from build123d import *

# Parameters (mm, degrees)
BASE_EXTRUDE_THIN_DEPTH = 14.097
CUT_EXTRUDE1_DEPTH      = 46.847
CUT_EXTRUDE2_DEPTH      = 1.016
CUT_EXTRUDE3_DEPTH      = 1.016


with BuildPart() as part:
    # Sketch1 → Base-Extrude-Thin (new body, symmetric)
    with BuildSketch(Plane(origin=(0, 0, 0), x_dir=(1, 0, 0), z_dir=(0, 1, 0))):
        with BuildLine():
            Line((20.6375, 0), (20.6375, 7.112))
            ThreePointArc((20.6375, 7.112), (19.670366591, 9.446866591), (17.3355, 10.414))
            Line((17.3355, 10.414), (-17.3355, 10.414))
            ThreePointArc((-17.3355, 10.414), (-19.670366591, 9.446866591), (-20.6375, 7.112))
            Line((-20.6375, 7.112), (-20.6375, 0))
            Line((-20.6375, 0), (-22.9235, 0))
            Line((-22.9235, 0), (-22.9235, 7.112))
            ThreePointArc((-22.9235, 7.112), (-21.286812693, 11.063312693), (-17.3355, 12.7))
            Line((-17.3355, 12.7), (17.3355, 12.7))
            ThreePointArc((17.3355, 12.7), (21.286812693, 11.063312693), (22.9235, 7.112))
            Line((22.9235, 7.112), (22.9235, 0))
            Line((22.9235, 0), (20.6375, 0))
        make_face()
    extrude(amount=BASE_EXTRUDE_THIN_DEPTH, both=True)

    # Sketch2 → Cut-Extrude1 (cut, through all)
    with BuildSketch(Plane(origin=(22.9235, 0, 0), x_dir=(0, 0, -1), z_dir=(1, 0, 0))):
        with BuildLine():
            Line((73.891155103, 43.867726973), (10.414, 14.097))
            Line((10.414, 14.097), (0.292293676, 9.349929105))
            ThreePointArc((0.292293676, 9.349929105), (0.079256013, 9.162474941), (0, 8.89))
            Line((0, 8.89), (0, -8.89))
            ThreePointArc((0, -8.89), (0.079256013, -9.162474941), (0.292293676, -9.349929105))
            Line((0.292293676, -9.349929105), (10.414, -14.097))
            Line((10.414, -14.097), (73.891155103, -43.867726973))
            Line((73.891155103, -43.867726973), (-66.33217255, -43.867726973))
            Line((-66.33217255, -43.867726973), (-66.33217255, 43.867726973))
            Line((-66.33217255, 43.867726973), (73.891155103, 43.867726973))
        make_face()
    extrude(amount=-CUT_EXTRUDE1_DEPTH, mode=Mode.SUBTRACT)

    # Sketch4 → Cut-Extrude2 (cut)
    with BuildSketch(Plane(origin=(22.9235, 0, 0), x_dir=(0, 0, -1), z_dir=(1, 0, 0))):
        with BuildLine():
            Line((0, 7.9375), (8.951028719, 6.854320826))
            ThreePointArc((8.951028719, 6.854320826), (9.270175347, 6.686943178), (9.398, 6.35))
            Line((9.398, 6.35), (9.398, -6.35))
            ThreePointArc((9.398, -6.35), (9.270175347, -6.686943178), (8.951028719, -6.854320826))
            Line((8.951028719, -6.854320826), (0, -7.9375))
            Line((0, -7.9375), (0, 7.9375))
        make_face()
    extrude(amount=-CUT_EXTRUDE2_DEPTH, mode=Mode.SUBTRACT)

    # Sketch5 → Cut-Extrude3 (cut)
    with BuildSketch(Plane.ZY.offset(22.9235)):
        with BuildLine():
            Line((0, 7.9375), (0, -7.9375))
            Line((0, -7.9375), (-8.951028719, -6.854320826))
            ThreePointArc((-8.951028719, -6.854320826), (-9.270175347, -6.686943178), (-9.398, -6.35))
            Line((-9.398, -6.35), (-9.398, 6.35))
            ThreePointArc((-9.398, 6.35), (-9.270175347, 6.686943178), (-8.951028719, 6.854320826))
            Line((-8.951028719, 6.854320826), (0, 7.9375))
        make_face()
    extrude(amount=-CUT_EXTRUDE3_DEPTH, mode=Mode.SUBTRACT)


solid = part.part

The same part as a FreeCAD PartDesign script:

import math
import FreeCAD as App
import Part
import Sketcher
Q = App.Units.Quantity

doc = App.newDocument("Part")
body = doc.addObject("PartDesign::Body", "Body")

# Sketch on XZ plane
sketch1 = body.newObject("Sketcher::SketchObject", "Sketch")
sketch1.AttachmentSupport = (doc.getObject("XZ_Plane"), [""])
sketch1.MapMode = "FlatFace"
sketch1.addGeometry(Part.LineSegment(App.Vector(20.6, -7.1, 0), App.Vector(20.6, 0, 0)), False)
sketch1.addGeometry(Part.LineSegment(App.Vector(20.6, 0, 0), App.Vector(22.9, 0, 0)), False)
sketch1.addGeometry(Part.LineSegment(App.Vector(22.9, 0, 0), App.Vector(22.9, -7.1, 0)), False)
sketch1.addGeometry(Part.ArcOfCircle(Part.Circle(App.Vector(17.3, -7.1, 0), App.Vector(0, 0, 1), 5.6), math.radians(-90), math.radians(0)), False)
sketch1.addGeometry(Part.LineSegment(App.Vector(17.3, -12.7, 0), App.Vector(-17.3, -12.7, 0)), False)
sketch1.addGeometry(Part.ArcOfCircle(Part.Circle(App.Vector(-17.3, -7.1, 0), App.Vector(0, 0, 1), 5.6), math.radians(-180), math.radians(-90)), False)
sketch1.addGeometry(Part.LineSegment(App.Vector(-22.9, -7.1, 0), App.Vector(-22.9, 0, 0)), False)
sketch1.addGeometry(Part.LineSegment(App.Vector(-22.9, 0, 0), App.Vector(-20.6, 0, 0)), False)
sketch1.addGeometry(Part.LineSegment(App.Vector(-20.6, 0, 0), App.Vector(-20.6, -7.1, 0)), False)
sketch1.addGeometry(Part.ArcOfCircle(Part.Circle(App.Vector(-17.3, -7.1, 0), App.Vector(0, 0, 1), 3.3), math.radians(-180), math.radians(-90)), False)
sketch1.addGeometry(Part.LineSegment(App.Vector(-17.3, -10.4, 0), App.Vector(17.3, -10.4, 0)), False)
sketch1.addGeometry(Part.ArcOfCircle(Part.Circle(App.Vector(17.3, -7.1, 0), App.Vector(0, 0, 1), 3.3), math.radians(-90), math.radians(0)), False)
sketch1.addConstraint(Sketcher.Constraint("Coincident", 0, 2, 1, 1))
sketch1.addConstraint(Sketcher.Constraint("Coincident", 1, 2, 2, 1))
sketch1.addConstraint(Sketcher.Constraint("Tangent", 2, 2, 3, 2))
sketch1.addConstraint(Sketcher.Constraint("Tangent", 3, 1, 4, 1))
sketch1.addConstraint(Sketcher.Constraint("Tangent", 4, 2, 5, 2))
sketch1.addConstraint(Sketcher.Constraint("Tangent", 5, 1, 6, 1))
sketch1.addConstraint(Sketcher.Constraint("Coincident", 6, 2, 7, 1))
sketch1.addConstraint(Sketcher.Constraint("Coincident", 7, 2, 8, 1))
sketch1.addConstraint(Sketcher.Constraint("Tangent", 8, 2, 9, 1))
sketch1.addConstraint(Sketcher.Constraint("Tangent", 9, 2, 10, 1))
sketch1.addConstraint(Sketcher.Constraint("Tangent", 10, 2, 11, 1))
sketch1.addConstraint(Sketcher.Constraint("Tangent", 11, 2, 0, 1))
sketch1.addConstraint(Sketcher.Constraint("Vertical", 0))
sketch1.addConstraint(Sketcher.Constraint("Horizontal", 1))
sketch1.addConstraint(Sketcher.Constraint("Vertical", 2))
sketch1.addConstraint(Sketcher.Constraint("Horizontal", 4))
sketch1.addConstraint(Sketcher.Constraint("Vertical", 6))
sketch1.addConstraint(Sketcher.Constraint("Horizontal", 7))
sketch1.addConstraint(Sketcher.Constraint("Vertical", 8))
sketch1.addConstraint(Sketcher.Constraint("Horizontal", 10))
sketch1.addConstraint(Sketcher.Constraint("Coincident", 9, 3, 5, 3))
sketch1.addConstraint(Sketcher.Constraint("Coincident", 11, 3, 3, 3))
sketch1.addConstraint(Sketcher.Constraint("Equal", 3, 5))
sketch1.addConstraint(Sketcher.Constraint("Symmetric", 1, 2, 6, 2, -1, 1))
sketch1.addConstraint(Sketcher.Constraint("PointOnObject", 0, 2, -1))
sketch1.addConstraint(Sketcher.Constraint("Radius", 3, Q("0.22 in")))
sketch1.addConstraint(Sketcher.Constraint("Radius", 9, Q("0.13 in")))
sketch1.addConstraint(Sketcher.Constraint("DistanceY", 0, 1, 0, 2, Q("0.28 in")))
sketch1.addConstraint(Sketcher.Constraint("DistanceX", 4, 2, 4, 1, Q("1.365 in")))
pad1 = body.newObject("PartDesign::Pad", "Pad")
pad1.Profile = sketch1
pad1.Length = Q("1.11 in")
pad1.Midplane = True

# Sketch on YZ plane
sketch2 = body.newObject("Sketcher::SketchObject", "Sketch001")
sketch2.AttachmentSupport = (doc.getObject("YZ_Plane"), [""])
sketch2.MapMode = "FlatFace"
sketch2.AttachmentOffset = App.Placement(App.Vector(0, 0, 0.9025 * 25.4), App.Rotation())
sketch2.addGeometry(Part.LineSegment(App.Vector(14.1, -10.4, 0), App.Vector(43.9, -73.9, 0)), False)
sketch2.addGeometry(Part.LineSegment(App.Vector(43.9, -73.9, 0), App.Vector(43.9, 66.3, 0)), False)
sketch2.addGeometry(Part.LineSegment(App.Vector(43.9, 66.3, 0), App.Vector(-43.9, 66.3, 0)), False)
sketch2.addGeometry(Part.LineSegment(App.Vector(-43.9, 66.3, 0), App.Vector(-43.9, -73.9, 0)), False)
sketch2.addGeometry(Part.LineSegment(App.Vector(-43.9, -73.9, 0), App.Vector(-14.1, -10.4, 0)), False)
sketch2.addGeometry(Part.LineSegment(App.Vector(-14.1, -10.4, 0), App.Vector(-9.3, -0.3, 0)), False)
sketch2.addGeometry(Part.ArcOfCircle(Part.Circle(App.Vector(-8.9, -0.5, 0), App.Vector(0, 0, 1), 0.5), math.radians(90), math.radians(155)), False)
sketch2.addGeometry(Part.LineSegment(App.Vector(-8.9, 0, 0), App.Vector(8.9, 0, 0)), False)
sketch2.addGeometry(Part.ArcOfCircle(Part.Circle(App.Vector(8.9, -0.5, 0), App.Vector(0, 0, 1), 0.5), math.radians(25), math.radians(90)), False)
sketch2.addGeometry(Part.LineSegment(App.Vector(9.3, -0.3, 0), App.Vector(14.1, -10.4, 0)), False)
sketch2.addConstraint(Sketcher.Constraint("Coincident", 0, 2, 1, 1))
sketch2.addConstraint(Sketcher.Constraint("Coincident", 1, 2, 2, 1))
sketch2.addConstraint(Sketcher.Constraint("Coincident", 2, 2, 3, 1))
sketch2.addConstraint(Sketcher.Constraint("Coincident", 3, 2, 4, 1))
sketch2.addConstraint(Sketcher.Constraint("Coincident", 4, 2, 5, 1))
sketch2.addConstraint(Sketcher.Constraint("Tangent", 5, 2, 6, 2))
sketch2.addConstraint(Sketcher.Constraint("Tangent", 6, 1, 7, 1))
sketch2.addConstraint(Sketcher.Constraint("Tangent", 7, 2, 8, 2))
sketch2.addConstraint(Sketcher.Constraint("Tangent", 8, 1, 9, 1))
sketch2.addConstraint(Sketcher.Constraint("Coincident", 9, 2, 0, 1))
sketch2.addConstraint(Sketcher.Constraint("Vertical", 1))
sketch2.addConstraint(Sketcher.Constraint("Horizontal", 2))
sketch2.addConstraint(Sketcher.Constraint("Vertical", 3))
sketch2.addConstraint(Sketcher.Constraint("Horizontal", 7))
sketch2.addConstraint(Sketcher.Constraint("Equal", 6, 8))
sketch2.addConstraint(Sketcher.Constraint("Symmetric", 6, 1, 7, 2, -1, 1))
sketch2.addConstraint(Sketcher.Constraint("Symmetric", 0, 2, 3, 2, -2))
sketch2.addConstraint(Sketcher.Constraint("Symmetric", 4, 2, 9, 2, -2))
sketch2.addConstraint(Sketcher.Constraint("Parallel", 4, 5))
sketch2.addConstraint(Sketcher.Constraint("Radius", 6, Q("0.02 in")))
sketch2.addConstraint(Sketcher.Constraint("DistanceX", 7, 1, 7, 2, Q("0.7 in")))
sketch2.addConstraint(Sketcher.Constraint("DistanceY", 4, 2, -1, 1, Q("0.41 in")))
sketch2.addConstraint(Sketcher.Constraint("DistanceX", 4, 2, -1, 1, Q("0.555 in")))
sketch2.addConstraint(Sketcher.Constraint("DistanceX", 2, 2, 2, 1, 87.735454))
sketch2.addConstraint(Sketcher.Constraint("DistanceY", 1, 1, 1, 2, 140.223328))
pocket1 = body.newObject("PartDesign::Pocket", "Pocket")
pocket1.Profile = sketch2
pocket1.Type = "ThroughAll"

# Sketch on YZ plane
sketch3 = body.newObject("Sketcher::SketchObject", "Sketch002")
sketch3.AttachmentSupport = (doc.getObject("YZ_Plane"), [""])
sketch3.MapMode = "FlatFace"
sketch3.AttachmentOffset = App.Placement(App.Vector(0, 0, 0.9025 * 25.4), App.Rotation())
sketch3.addGeometry(Part.LineSegment(App.Vector(6.9, -9, 0), App.Vector(7.9, 0, 0)), False)
sketch3.addGeometry(Part.LineSegment(App.Vector(7.9, 0, 0), App.Vector(-7.9, 0, 0)), False)
sketch3.addGeometry(Part.LineSegment(App.Vector(-7.9, 0, 0), App.Vector(-6.9, -9, 0)), False)
sketch3.addGeometry(Part.ArcOfCircle(Part.Circle(App.Vector(-6.3, -8.9, 0), App.Vector(0, 0, 1), 0.5), math.radians(-173), math.radians(-90)), False)
sketch3.addGeometry(Part.LineSegment(App.Vector(-6.3, -9.4, 0), App.Vector(6.3, -9.4, 0)), False)
sketch3.addGeometry(Part.ArcOfCircle(Part.Circle(App.Vector(6.3, -8.9, 0), App.Vector(0, 0, 1), 0.5), math.radians(-90), math.radians(-7)), False)
sketch3.addConstraint(Sketcher.Constraint("Coincident", 0, 2, 1, 1))
sketch3.addConstraint(Sketcher.Constraint("Coincident", 1, 2, 2, 1))
sketch3.addConstraint(Sketcher.Constraint("Tangent", 2, 2, 3, 1))
sketch3.addConstraint(Sketcher.Constraint("Tangent", 3, 2, 4, 1))
sketch3.addConstraint(Sketcher.Constraint("Tangent", 4, 2, 5, 1))
sketch3.addConstraint(Sketcher.Constraint("Tangent", 5, 2, 0, 1))
sketch3.addConstraint(Sketcher.Constraint("Horizontal", 1))
sketch3.addConstraint(Sketcher.Constraint("Horizontal", 4))
sketch3.addConstraint(Sketcher.Constraint("Equal", 3, 5))
sketch3.addConstraint(Sketcher.Constraint("Symmetric", 0, 2, 1, 2, -1, 1))
sketch3.addConstraint(Sketcher.Constraint("Horizontal", 2, 2, 5, 2))
sketch3.addConstraint(Sketcher.Constraint("Radius", 3, Q("0.02 in")))
sketch3.addConstraint(Sketcher.Constraint("DistanceX", 4, 1, 4, 2, Q("0.5 in")))
sketch3.addConstraint(Sketcher.Constraint("DistanceX", 1, 2, 1, 1, Q("0.625 in")))
sketch3.addConstraint(Sketcher.Constraint("DistanceY", 3, 3, -1, 1, Q("0.35 in")))
pocket2 = body.newObject("PartDesign::Pocket", "Pocket001")
pocket2.Profile = sketch3
pocket2.Length = Q("0.04 in")

# Sketch on YZ plane
sketch4 = body.newObject("Sketcher::SketchObject", "Sketch003")
sketch4.AttachmentSupport = (doc.getObject("YZ_Plane"), [""])
sketch4.MapMode = "FlatFace"
sketch4.AttachmentOffset = App.Placement(App.Vector(0, 0, -0.9025 * 25.4), App.Rotation())
sketch4.addGeometry(Part.LineSegment(App.Vector(-7.9, 0, 0), App.Vector(7.9, 0, 0)), False)
sketch4.addGeometry(Part.LineSegment(App.Vector(7.9, 0, 0), App.Vector(6.9, -9, 0)), False)
sketch4.addGeometry(Part.ArcOfCircle(Part.Circle(App.Vector(6.3, -8.9, 0), App.Vector(0, 0, 1), 0.5), math.radians(-90), math.radians(-7)), False)
sketch4.addGeometry(Part.LineSegment(App.Vector(6.3, -9.4, 0), App.Vector(-6.3, -9.4, 0)), False)
sketch4.addGeometry(Part.ArcOfCircle(Part.Circle(App.Vector(-6.3, -8.9, 0), App.Vector(0, 0, 1), 0.5), math.radians(-173), math.radians(-90)), False)
sketch4.addGeometry(Part.LineSegment(App.Vector(-6.9, -9, 0), App.Vector(-7.9, 0, 0)), False)
sketch4.addConstraint(Sketcher.Constraint("Coincident", 0, 2, 1, 1))
sketch4.addConstraint(Sketcher.Constraint("Tangent", 1, 2, 2, 2))
sketch4.addConstraint(Sketcher.Constraint("Tangent", 2, 1, 3, 1))
sketch4.addConstraint(Sketcher.Constraint("Tangent", 3, 2, 4, 2))
sketch4.addConstraint(Sketcher.Constraint("Tangent", 4, 1, 5, 1))
sketch4.addConstraint(Sketcher.Constraint("Coincident", 5, 2, 0, 1))
sketch4.addConstraint(Sketcher.Constraint("Horizontal", 0))
sketch4.addConstraint(Sketcher.Constraint("Horizontal", 3))
sketch4.addConstraint(Sketcher.Constraint("Equal", 2, 4))
sketch4.addConstraint(Sketcher.Constraint("Symmetric", 0, 2, 5, 2, -1, 1))
sketch4.addConstraint(Sketcher.Constraint("Horizontal", 1, 2, 4, 1))
sketch4.addConstraint(Sketcher.Constraint("Radius", 2, Q("0.02 in")))
sketch4.addConstraint(Sketcher.Constraint("DistanceX", 3, 2, 3, 1, Q("0.5 in")))
sketch4.addConstraint(Sketcher.Constraint("DistanceX", 0, 1, 0, 2, Q("0.625 in")))
sketch4.addConstraint(Sketcher.Constraint("DistanceY", 2, 3, -1, 1, Q("0.35 in")))
pocket3 = body.newObject("PartDesign::Pocket", "Pocket002")
pocket3.Profile = sketch4
pocket3.Length = Q("0.04 in")
pocket3.Reversed = True

doc.recompute()
